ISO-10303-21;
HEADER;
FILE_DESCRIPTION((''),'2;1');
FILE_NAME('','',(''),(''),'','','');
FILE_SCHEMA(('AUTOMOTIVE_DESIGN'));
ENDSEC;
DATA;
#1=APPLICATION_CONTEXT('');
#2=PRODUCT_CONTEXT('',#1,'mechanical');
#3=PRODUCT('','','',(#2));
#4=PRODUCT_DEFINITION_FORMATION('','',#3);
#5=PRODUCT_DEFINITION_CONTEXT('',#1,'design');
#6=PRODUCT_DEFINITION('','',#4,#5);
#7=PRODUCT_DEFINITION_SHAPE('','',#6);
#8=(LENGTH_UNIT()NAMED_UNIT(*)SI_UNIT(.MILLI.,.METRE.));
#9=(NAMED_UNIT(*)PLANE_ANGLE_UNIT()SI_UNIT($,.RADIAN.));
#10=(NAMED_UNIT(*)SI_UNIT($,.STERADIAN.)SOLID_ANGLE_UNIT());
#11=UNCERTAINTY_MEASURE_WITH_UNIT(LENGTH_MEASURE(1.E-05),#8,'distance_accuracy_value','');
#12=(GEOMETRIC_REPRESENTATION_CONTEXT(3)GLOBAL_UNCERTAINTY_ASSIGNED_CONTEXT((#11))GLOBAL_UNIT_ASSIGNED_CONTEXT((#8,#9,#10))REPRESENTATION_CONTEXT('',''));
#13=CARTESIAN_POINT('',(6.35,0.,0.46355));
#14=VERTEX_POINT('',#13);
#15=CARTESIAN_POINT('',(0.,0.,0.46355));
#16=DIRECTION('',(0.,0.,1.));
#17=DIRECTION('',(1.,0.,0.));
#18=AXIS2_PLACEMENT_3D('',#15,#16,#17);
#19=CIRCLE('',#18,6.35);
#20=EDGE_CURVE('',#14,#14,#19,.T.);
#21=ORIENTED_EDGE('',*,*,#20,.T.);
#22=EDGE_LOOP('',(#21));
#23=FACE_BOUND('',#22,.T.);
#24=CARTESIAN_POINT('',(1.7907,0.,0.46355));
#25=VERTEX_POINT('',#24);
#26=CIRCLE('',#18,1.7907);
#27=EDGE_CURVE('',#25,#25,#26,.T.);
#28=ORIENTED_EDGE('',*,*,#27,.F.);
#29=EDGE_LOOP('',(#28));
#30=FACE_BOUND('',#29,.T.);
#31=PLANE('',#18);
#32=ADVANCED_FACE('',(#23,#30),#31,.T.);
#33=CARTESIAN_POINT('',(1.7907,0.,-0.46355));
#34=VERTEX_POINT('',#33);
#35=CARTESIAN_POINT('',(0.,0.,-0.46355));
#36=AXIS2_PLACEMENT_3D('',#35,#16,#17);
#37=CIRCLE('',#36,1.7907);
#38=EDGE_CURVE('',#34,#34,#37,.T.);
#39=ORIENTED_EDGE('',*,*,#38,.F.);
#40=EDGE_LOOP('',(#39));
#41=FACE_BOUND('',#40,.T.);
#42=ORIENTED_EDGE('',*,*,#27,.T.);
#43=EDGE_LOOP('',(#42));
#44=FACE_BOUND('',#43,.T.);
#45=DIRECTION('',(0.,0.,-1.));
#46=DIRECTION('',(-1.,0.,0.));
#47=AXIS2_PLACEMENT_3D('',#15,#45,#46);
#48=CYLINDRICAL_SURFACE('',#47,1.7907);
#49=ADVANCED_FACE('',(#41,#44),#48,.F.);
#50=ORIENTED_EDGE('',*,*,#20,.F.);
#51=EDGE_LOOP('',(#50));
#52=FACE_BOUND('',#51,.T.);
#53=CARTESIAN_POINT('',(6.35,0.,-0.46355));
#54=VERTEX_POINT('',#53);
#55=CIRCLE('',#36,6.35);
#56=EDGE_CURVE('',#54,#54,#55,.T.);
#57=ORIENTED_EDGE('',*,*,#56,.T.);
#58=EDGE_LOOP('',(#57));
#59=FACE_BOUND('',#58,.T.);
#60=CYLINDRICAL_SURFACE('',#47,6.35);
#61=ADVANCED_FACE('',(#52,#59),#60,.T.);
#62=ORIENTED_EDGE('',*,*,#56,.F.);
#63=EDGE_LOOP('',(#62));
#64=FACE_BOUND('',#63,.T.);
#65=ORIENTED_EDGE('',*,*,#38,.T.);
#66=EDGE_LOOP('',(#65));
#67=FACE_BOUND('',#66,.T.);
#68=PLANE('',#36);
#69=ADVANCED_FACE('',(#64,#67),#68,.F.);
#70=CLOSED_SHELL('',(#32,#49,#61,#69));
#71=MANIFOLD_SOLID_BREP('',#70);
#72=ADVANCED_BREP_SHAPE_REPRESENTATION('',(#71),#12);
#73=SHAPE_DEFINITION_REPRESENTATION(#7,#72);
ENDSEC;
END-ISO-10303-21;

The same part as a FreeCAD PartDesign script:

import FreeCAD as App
import Part
import Sketcher
from FreeCAD import Vector
Q = App.Units.Quantity

doc = App.newDocument("Part")
body = doc.addObject("PartDesign::Body", "Body")

sketch1 = body.newObject("Sketcher::SketchObject", "Sketch")
sketch1.AttachmentSupport = (doc.getObject("XY_Plane"), [""])
sketch1.MapMode = "FlatFace"
sketch1.addGeometry(Part.Circle(Vector(0, 0, 0), Vector(0, 0, 1), 6.3), False)
sketch1.addGeometry(Part.Circle(Vector(0, 0, 0), Vector(0, 0, 1), 1.8), False)
sketch1.addConstraint(Sketcher.Constraint("Coincident", 0, 3, -1, 1))
sketch1.addConstraint(Sketcher.Constraint("Coincident", 1, 3, -1, 1))
sketch1.addConstraint(Sketcher.Constraint("Diameter", 0, Q("0.5 in")))
sketch1.addConstraint(Sketcher.Constraint("Diameter", 1, Q("0.141 in")))
pad1 = body.newObject("PartDesign::Pad", "Pad")
pad1.Profile = sketch1
pad1.Type = "TwoLengths"
pad1.Length = 0.46355
pad1.Length2 = 0.46355

doc.recompute()
